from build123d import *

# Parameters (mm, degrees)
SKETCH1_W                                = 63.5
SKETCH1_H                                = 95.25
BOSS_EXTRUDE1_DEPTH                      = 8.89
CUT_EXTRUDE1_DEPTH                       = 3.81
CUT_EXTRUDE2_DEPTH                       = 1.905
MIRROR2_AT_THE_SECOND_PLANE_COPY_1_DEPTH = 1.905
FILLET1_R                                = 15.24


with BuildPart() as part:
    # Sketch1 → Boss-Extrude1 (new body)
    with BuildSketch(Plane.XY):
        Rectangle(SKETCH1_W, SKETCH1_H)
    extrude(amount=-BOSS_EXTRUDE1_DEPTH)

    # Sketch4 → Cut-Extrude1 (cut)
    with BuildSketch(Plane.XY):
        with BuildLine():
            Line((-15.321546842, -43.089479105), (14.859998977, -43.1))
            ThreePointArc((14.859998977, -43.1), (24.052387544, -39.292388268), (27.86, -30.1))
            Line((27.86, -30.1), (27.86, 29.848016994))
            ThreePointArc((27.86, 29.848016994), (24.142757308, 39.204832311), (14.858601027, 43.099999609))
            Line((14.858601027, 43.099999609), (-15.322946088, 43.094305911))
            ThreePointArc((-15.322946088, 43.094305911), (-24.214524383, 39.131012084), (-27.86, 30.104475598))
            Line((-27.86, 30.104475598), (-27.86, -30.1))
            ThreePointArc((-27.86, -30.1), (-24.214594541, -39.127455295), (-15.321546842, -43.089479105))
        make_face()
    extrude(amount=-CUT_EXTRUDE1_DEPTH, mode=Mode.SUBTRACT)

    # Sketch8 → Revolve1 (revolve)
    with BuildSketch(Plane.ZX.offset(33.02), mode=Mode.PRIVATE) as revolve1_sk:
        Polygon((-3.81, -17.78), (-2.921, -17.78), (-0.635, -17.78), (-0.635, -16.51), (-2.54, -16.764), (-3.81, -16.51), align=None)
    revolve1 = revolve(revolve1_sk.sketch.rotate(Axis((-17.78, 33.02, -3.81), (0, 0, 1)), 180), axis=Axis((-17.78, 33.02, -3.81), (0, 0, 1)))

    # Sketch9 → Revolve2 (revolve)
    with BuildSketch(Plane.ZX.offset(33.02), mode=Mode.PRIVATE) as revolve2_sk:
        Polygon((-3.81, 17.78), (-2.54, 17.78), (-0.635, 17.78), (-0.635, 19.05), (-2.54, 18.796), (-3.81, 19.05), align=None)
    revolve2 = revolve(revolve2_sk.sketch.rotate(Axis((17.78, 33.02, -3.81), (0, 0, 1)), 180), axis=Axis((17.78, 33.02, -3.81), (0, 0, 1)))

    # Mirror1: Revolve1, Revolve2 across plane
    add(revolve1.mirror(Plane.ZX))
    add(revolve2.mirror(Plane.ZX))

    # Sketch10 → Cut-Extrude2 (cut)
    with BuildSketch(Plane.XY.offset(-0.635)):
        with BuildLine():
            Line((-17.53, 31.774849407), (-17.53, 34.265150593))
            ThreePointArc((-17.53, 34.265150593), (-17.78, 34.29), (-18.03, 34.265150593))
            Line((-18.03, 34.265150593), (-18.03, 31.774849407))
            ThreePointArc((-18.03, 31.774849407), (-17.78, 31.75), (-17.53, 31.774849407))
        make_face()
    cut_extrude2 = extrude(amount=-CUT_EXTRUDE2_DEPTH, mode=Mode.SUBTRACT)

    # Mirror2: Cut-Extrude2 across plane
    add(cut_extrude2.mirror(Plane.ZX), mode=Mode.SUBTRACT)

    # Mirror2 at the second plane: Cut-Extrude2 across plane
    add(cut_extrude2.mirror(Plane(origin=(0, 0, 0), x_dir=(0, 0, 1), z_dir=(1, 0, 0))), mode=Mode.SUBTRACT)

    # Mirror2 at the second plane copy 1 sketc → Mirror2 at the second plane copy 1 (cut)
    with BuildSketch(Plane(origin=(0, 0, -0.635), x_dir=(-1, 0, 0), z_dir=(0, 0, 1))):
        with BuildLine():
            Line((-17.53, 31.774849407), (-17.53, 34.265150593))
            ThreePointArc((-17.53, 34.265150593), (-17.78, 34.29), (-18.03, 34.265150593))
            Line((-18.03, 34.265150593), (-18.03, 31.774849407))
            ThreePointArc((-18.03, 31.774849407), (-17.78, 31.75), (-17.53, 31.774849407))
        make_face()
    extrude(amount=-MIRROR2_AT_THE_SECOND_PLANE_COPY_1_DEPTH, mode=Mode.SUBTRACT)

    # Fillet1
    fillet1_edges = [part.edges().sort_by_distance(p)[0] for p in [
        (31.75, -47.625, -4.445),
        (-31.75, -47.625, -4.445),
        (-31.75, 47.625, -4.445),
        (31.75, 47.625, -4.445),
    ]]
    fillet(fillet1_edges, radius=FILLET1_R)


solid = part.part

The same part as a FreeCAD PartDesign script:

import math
import FreeCAD as App
import Part
import Sketcher

V = App.Vector
Q = App.Units.Quantity


def edges_at(feature, points):
    """Names of the edges that pass closest to the given points."""
    edges = feature.Shape.Edges
    near = lambda p: min(range(len(edges)), key=lambda i: edges[i].distToShape(Part.Vertex(*p))[0])
    return sorted({f"Edge{near(p) + 1}" for p in points})

doc = App.newDocument("Part")
body = doc.addObject("PartDesign::Body", "Body")

# Sketch on XY plane
sketch1 = body.newObject("Sketcher::SketchObject", "Sketch")
sketch1.AttachmentSupport = (doc.getObject("XY_Plane"), [""])
sketch1.MapMode = "FlatFace"
sketch1.addGeometry([
    Part.LineSegment(V(-32, 48, 0), V(-32, -48, 0)),
    Part.LineSegment(V(-32, -48, 0), V(32, -48, 0)),
    Part.LineSegment(V(32, -48, 0), V(32, 48, 0)),
    Part.LineSegment(V(32, 48, 0), V(-32, 48, 0)),
], False)
sketch1.addConstraint([
    Sketcher.Constraint("Coincident", 0, 2, 1, 1),
    Sketcher.Constraint("Coincident", 1, 2, 2, 1),
    Sketcher.Constraint("Coincident", 2, 2, 3, 1),
    Sketcher.Constraint("Coincident", 3, 2, 0, 1),
    Sketcher.Constraint("Vertical", 0),
    Sketcher.Constraint("Horizontal", 1),
    Sketcher.Constraint("Vertical", 2),
    Sketcher.Constraint("Horizontal", 3),
    Sketcher.Constraint("Symmetric", 0, 2, 2, 2, -1, 1),
    Sketcher.Constraint("DistanceX", 1, 1, 1, 2, Q("2.5 in")),
    Sketcher.Constraint("DistanceY", 0, 2, 0, 1, Q("3.75 in")),
])
pad1 = body.newObject("PartDesign::Pad", "Pad")
pad1.Profile = sketch1
pad1.Length = Q("0.35 in")
pad1.Reversed = True

# Sketch on XY plane
sketch2 = body.newObject("Sketcher::SketchObject", "Sketch001")
sketch2.AttachmentSupport = (doc.getObject("XY_Plane"), [""])
sketch2.MapMode = "FlatFace"
sketch2.addGeometry([
    Part.LineSegment(V(-15.321547, -43.089479, 0), V(14.859999, -43.1, 0)),  # 0
    Part.ArcOfCircle(Part.Circle(V(14.859999, -30.099999, 0), V(0, 0, 1), 13.000001), math.radians(-90.000001), math.radians(-0.000004)),  # 1
    Part.LineSegment(V(27.86, -30.1, 0), V(27.86, 29.848017, 0)),  # 2
    Part.ArcOfCircle(Part.Circle(V(14.864476, 30.101995, 0), V(0, 0, 1), 12.998006), math.radians(-1.119617), math.radians(90.025895)),  # 3
    Part.LineSegment(V(14.858601, 43.1, 0), V(-15.322946, 43.094306, 0)),  # 4
    Part.ArcOfCircle(Part.Circle(V(-14.861996, 30.104478, 0), V(0, 0, 1), 12.998004), math.radians(92.032315), math.radians(180.00001)),  # 5
    Part.LineSegment(V(-27.86, 30.104476, 0), V(-27.86, -30.1, 0)),  # 6
    Part.ArcOfCircle(Part.Circle(V(-14.864476, -30.101995, 0), V(0, 0, 1), 12.995525), math.radians(179.991204), math.radians(267.98441)),  # 7
], False)
sketch2.addConstraint([
    Sketcher.Constraint("Coincident", 0, 2, 1, 1),
    Sketcher.Constraint("Coincident", 1, 2, 2, 1),
    Sketcher.Constraint("Coincident", 2, 2, 3, 1),
    Sketcher.Constraint("Coincident", 3, 2, 4, 1),
    Sketcher.Constraint("Coincident", 4, 2, 5, 1),
    Sketcher.Constraint("Coincident", 5, 2, 6, 1),
    Sketcher.Constraint("Coincident", 6, 2, 7, 1),
    Sketcher.Constraint("Coincident", 7, 2, 0, 1),
    Sketcher.Constraint("Vertical", 2),
    Sketcher.Constraint("Vertical", 6),
    Sketcher.Constraint("Radius", 1, Q("13.000001 mm")),
    Sketcher.Constraint("Radius", 3, Q("12.998006 mm")),
    Sketcher.Constraint("Radius", 5, Q("12.998004 mm")),
    Sketcher.Constraint("Radius", 7, Q("12.995525 mm")),
    Sketcher.Constraint("DistanceX", -1, 1, 1, 3, Q("14.859999 mm")),
    Sketcher.Constraint("DistanceY", 1, 3, -1, 1, Q("30.099999 mm")),
    Sketcher.Constraint("DistanceX", -1, 1, 0, 2, Q("14.859999 mm")),
    Sketcher.Constraint("DistanceY", 1, 2, -1, 1, Q("30.1 mm")),
    Sketcher.Constraint("DistanceX", -1, 1, 3, 2, Q("14.858601 mm")),
    Sketcher.Constraint("DistanceY", -1, 1, 3, 2, Q("43.1 mm")),
    Sketcher.Constraint("DistanceX", 5, 2, -1, 1, Q("27.86 mm")),
    Sketcher.Constraint("DistanceY", 6, 2, -1, 1, Q("30.1 mm")),
    Sketcher.Constraint("DistanceY", 7, 3, 4, 2, Q("73.196301 mm")),
    Sketcher.Constraint("DistanceY", 2, 1, 2, 2, Q("59.948017 mm")),
    Sketcher.Constraint("DistanceY", 6, 2, 6, 1, Q("60.204476 mm")),
    Sketcher.Constraint("DistanceY", 7, 2, -1, 1, Q("43.089479 mm")),
    Sketcher.Constraint("DistanceY", 7, 3, 3, 3, Q("60.20399 mm")),
    Sketcher.Constraint("DistanceY", 2, 2, 5, 3, Q("0.256461 mm")),
])
pocket1 = body.newObject("PartDesign::Pocket", "Pocket")
pocket1.Profile = sketch2
pocket1.Length = Q("0.15 in")

# Sketch on XZ plane
sketch3 = body.newObject("Sketcher::SketchObject", "Sketch002")
sketch3.AttachmentSupport = (doc.getObject("XZ_Plane"), [""])
sketch3.MapMode = "FlatFace"
sketch3.AttachmentOffset = App.Placement(V(0, 0, -1.3 * 25.4), App.Rotation())
sketch3.addGeometry([
    Part.LineSegment(V(-17.8, -3.8, 0), V(-17.8, -0.6, 0)),  # 0
    Part.LineSegment(V(-17.8, -0.6, 0), V(-16.5, -0.6, 0)),  # 1
    Part.LineSegment(V(-16.5, -0.6, 0), V(-16.8, -2.5, 0)),  # 2
    Part.LineSegment(V(-16.8, -2.5, 0), V(-16.5, -3.8, 0)),  # 3
    Part.LineSegment(V(-16.5, -3.8, 0), V(-17.8, -3.8, 0)),  # 4
], False)
sketch3.addGeometry(Part.LineSegment(V(-17.8, -3.8, 0), V(-17.8, -0.6, 0)), True)  # axis
sketch3.addConstraint([
    Sketcher.Constraint("Coincident", 0, 2, 1, 1),
    Sketcher.Constraint("Coincident", 1, 2, 2, 1),
    Sketcher.Constraint("Coincident", 2, 2, 3, 1),
    Sketcher.Constraint("Coincident", 3, 2, 4, 1),
    Sketcher.Constraint("Coincident", 4, 2, 0, 1),
    Sketcher.Constraint("Vertical", 0),
    Sketcher.Constraint("Horizontal", 1),
    Sketcher.Constraint("Horizontal", 4),
    Sketcher.Constraint("Vertical", 5),
    Sketcher.Constraint("Coincident", 5, 1, 4, 2),
    Sketcher.Constraint("Horizontal", 1, 2, 5, 2),
    Sketcher.Constraint("Vertical", 1, 2, 3, 2),
    Sketcher.Constraint("DistanceX", 1, 1, 1, 2, Q("0.05 in")),
    Sketcher.Constraint("DistanceX", 0, 2, -1, 1, Q("0.7 in")),
    Sketcher.Constraint("DistanceY", 2, 2, -1, 1, Q("0.1 in")),
    Sketcher.Constraint("DistanceY", 0, 1, 0, 2, Q("0.125 in")),
    Sketcher.Constraint("DistanceX", 2, 2, -1, 1, Q("0.66 in")),
    Sketcher.Constraint("DistanceY", 3, 2, -1, 1, Q("0.15 in")),
])
revolution = body.newObject("PartDesign::Revolution", "Revolution")
revolution.Profile = sketch3
revolution.ReferenceAxis = (sketch3, ["Axis0"])
revolution.Angle = 360

# Sketch on XZ plane
sketch4 = body.newObject("Sketcher::SketchObject", "Sketch003")
sketch4.AttachmentSupport = (doc.getObject("XZ_Plane"), [""])
sketch4.MapMode = "FlatFace"
sketch4.AttachmentOffset = App.Placement(V(0, 0, -1.3 * 25.4), App.Rotation())
sketch4.addGeometry([
    Part.LineSegment(V(17.8, -3.8, 0), V(17.8, -0.6, 0)),  # 0
    Part.LineSegment(V(17.8, -0.6, 0), V(19.1, -0.6, 0)),  # 1
    Part.LineSegment(V(19.1, -0.6, 0), V(18.8, -2.5, 0)),  # 2
    Part.LineSegment(V(18.8, -2.5, 0), V(19.1, -3.8, 0)),  # 3
    Part.LineSegment(V(19.1, -3.8, 0), V(17.8, -3.8, 0)),  # 4
], False)
sketch4.addGeometry(Part.LineSegment(V(17.8, -3.8, 0), V(17.8, -0.6, 0)), True)  # axis
sketch4.addConstraint([
    Sketcher.Constraint("Coincident", 0, 2, 1, 1),
    Sketcher.Constraint("Coincident", 1, 2, 2, 1),
    Sketcher.Constraint("Coincident", 2, 2, 3, 1),
    Sketcher.Constraint("Coincident", 3, 2, 4, 1),
    Sketcher.Constraint("Coincident", 4, 2, 0, 1),
    Sketcher.Constraint("Vertical", 0),
    Sketcher.Constraint("Horizontal", 1),
    Sketcher.Constraint("Horizontal", 4),
    Sketcher.Constraint("Vertical", 5),
    Sketcher.Constraint("Coincident", 5, 1, 4, 2),
    Sketcher.Constraint("Horizontal", 1, 2, 5, 2),
    Sketcher.Constraint("Vertical", 1, 2, 3, 2),
    Sketcher.Constraint("DistanceX", 1, 1, 1, 2, Q("0.05 in")),
    Sketcher.Constraint("DistanceX", -1, 1, 0, 2, Q("0.7 in")),
    Sketcher.Constraint("DistanceY", 2, 2, -1, 1, Q("0.1 in")),
    Sketcher.Constraint("DistanceY", 0, 1, 0, 2, Q("0.125 in")),
    Sketcher.Constraint("DistanceX", -1, 1, 2, 2, Q("0.74 in")),
    Sketcher.Constraint("DistanceY", 3, 2, -1, 1, Q("0.15 in")),
])
revolution2 = body.newObject("PartDesign::Revolution", "Revolution001")
revolution2.Profile = sketch4
revolution2.ReferenceAxis = (sketch4, ["Axis0"])
revolution2.Angle = 360
doc.recompute()

mirrored = body.newObject("PartDesign::Mirrored", "Mirrored")
mirrored.Originals = [revolution, revolution2]
mirrored.MirrorPlane = (doc.getObject("XZ_Plane"), [""])
body.Tip = mirrored

# Sketch on XY plane
sketch5 = body.newObject("Sketcher::SketchObject", "Sketch004")
sketch5.AttachmentSupport = (doc.getObject("XY_Plane"), [""])
sketch5.MapMode = "FlatFace"
sketch5.AttachmentOffset = App.Placement(V(0, 0, -0.025 * 25.4), App.Rotation())
sketch5.addGeometry([
    Part.LineSegment(V(-17.5, 31.8, 0), V(-17.5, 34.3, 0)),
    Part.ArcOfCircle(Part.Circle(V(-17.8, 33, 0), V(0, 0, 1), 1.3), math.radians(79), math.radians(101)),
    Part.LineSegment(V(-18, 34.3, 0), V(-18, 31.8, 0)),
    Part.ArcOfCircle(Part.Circle(V(-17.8, 33, 0), V(0, 0, 1), 1.3), math.radians(-101), math.radians(-79)),
], False)
sketch5.addConstraint([
    Sketcher.Constraint("Coincident", 0, 2, 1, 1),
    Sketcher.Constraint("Coincident", 1, 2, 2, 1),
    Sketcher.Constraint("Coincident", 2, 2, 3, 1),
    Sketcher.Constraint("Coincident", 3, 2, 0, 1),
    Sketcher.Constraint("Vertical", 0),
    Sketcher.Constraint("Vertical", 2),
    Sketcher.Constraint("Coincident", 3, 3, 1, 3),
    Sketcher.Constraint("Equal", 1, 3),
    Sketcher.Constraint("Horizontal", 0, 2, 1, 2),
    Sketcher.Constraint("Radius", 1, Q("0.05 in")),
    Sketcher.Constraint("DistanceX", 1, 3, -1, 1, Q("0.7 in")),
    Sketcher.Constraint("DistanceY", -1, 1, 1, 3, Q("1.3 in")),
    Sketcher.Constraint("DistanceY", 0, 1, 0, 2, Q("2.490301 mm")),
])
pocket2 = body.newObject("PartDesign::Pocket", "Pocket001")
pocket2.Profile = sketch5
pocket2.Length = Q("0.075 in")
doc.recompute()

mirrored2 = body.newObject("PartDesign::Mirrored", "Mirrored001")
mirrored2.Originals = [pocket2]
mirrored2.MirrorPlane = (doc.getObject("XZ_Plane"), [""])
body.Tip = mirrored2
doc.recompute()

mirrored3 = body.newObject("PartDesign::Mirrored", "Mirrored002")
mirrored3.Originals = [pocket2]
mirrored3.MirrorPlane = (doc.getObject("YZ_Plane"), [""])
body.Tip = mirrored3

# Sketch on XY plane
sketch6 = body.newObject("Sketcher::SketchObject", "Sketch005")
sketch6.AttachmentSupport = (doc.getObject("XY_Plane"), [""])
sketch6.MapMode = "FlatFace"
sketch6.AttachmentOffset = App.Placement(V(0, 0, -0.025 * 25.4), App.Rotation())
sketch6.addGeometry([
    Part.LineSegment(V(17.5, -31.8, 0), V(17.5, -34.3, 0)),
    Part.ArcOfCircle(Part.Circle(V(17.8, -33, 0), V(0, 0, 1), 1.3), math.radians(-101), math.radians(-79)),
    Part.LineSegment(V(18, -34.3, 0), V(18, -31.8, 0)),
    Part.ArcOfCircle(Part.Circle(V(17.8, -33, 0), V(0, 0, 1), 1.3), math.radians(79), math.radians(101)),
], False)
sketch6.addConstraint([
    Sketcher.Constraint("Coincident", 0, 2, 1, 1),
    Sketcher.Constraint("Coincident", 1, 2, 2, 1),
    Sketcher.Constraint("Coincident", 2, 2, 3, 1),
    Sketcher.Constraint("Coincident", 3, 2, 0, 1),
    Sketcher.Constraint("Vertical", 0),
    Sketcher.Constraint("Vertical", 2),
    Sketcher.Constraint("Coincident", 3, 3, 1, 3),
    Sketcher.Constraint("Equal", 1, 3),
    Sketcher.Constraint("Horizontal", 0, 2, 1, 2),
    Sketcher.Constraint("Radius", 1, Q("0.05 in")),
    Sketcher.Constraint("DistanceX", -1, 1, 1, 3, Q("0.7 in")),
    Sketcher.Constraint("DistanceY", 1, 3, -1, 1, Q("1.3 in")),
    Sketcher.Constraint("DistanceY", 0, 2, 0, 1, Q("2.490301 mm")),
])
pocket3 = body.newObject("PartDesign::Pocket", "Pocket002")
pocket3.Profile = sketch6
pocket3.Length = Q("0.075 in")
doc.recompute()

fillet = body.newObject("PartDesign::Fillet", "Fillet")
fillet.Base = (pocket3, edges_at(pocket3, [
    (31.75, -47.625, -4.445),
    (-31.75, -47.625, -4.445),
    (-31.75, 47.625, -4.445),
    (31.75, 47.625, -4.445),
]))
fillet.Radius = Q("0.6 in")

doc.recompute()
